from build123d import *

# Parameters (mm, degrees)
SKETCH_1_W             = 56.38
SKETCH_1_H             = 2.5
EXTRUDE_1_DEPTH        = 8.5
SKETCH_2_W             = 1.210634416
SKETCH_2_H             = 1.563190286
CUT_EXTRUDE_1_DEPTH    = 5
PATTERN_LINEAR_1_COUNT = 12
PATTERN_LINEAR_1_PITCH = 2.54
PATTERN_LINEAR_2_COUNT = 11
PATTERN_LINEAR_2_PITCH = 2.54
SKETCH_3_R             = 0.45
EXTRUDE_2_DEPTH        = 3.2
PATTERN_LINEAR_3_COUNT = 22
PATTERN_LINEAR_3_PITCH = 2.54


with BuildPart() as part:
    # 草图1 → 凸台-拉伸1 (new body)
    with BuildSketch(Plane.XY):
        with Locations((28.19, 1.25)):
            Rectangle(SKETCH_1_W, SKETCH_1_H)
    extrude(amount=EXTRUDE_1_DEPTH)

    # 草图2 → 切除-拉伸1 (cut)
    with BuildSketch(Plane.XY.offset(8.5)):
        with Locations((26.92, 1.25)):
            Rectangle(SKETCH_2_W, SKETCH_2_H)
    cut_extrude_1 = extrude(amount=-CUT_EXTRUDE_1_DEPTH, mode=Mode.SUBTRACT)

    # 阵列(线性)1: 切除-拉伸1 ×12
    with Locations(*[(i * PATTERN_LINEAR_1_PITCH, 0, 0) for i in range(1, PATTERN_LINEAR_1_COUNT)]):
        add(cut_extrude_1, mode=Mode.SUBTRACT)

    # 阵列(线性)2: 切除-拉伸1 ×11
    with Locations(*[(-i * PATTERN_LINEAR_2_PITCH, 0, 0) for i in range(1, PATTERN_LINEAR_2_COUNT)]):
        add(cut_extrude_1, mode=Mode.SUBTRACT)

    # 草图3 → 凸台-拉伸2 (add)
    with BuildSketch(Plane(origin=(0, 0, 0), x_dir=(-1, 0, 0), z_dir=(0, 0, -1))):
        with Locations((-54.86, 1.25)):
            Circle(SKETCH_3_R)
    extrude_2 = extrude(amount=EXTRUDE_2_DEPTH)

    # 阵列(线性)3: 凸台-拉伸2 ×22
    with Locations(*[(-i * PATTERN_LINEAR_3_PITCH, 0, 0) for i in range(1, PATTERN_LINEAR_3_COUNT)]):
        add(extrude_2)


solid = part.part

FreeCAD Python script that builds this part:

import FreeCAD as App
import Part
import Sketcher

V = App.Vector

doc = App.newDocument("Part")
body = doc.addObject("PartDesign::Body", "Body")

# Sketch on XY plane
sketch1 = body.newObject("Sketcher::SketchObject", "Sketch")
sketch1.AttachmentSupport = (doc.getObject("XY_Plane"), [""])
sketch1.MapMode = "FlatFace"
sketch1.addGeometry(Part.LineSegment(V(0, 2.5, 0), V(0, 0, 0)), False)
sketch1.addGeometry(Part.LineSegment(V(0, 0, 0), V(56.38, 0, 0)), False)
sketch1.addGeometry(Part.LineSegment(V(56.38, 0, 0), V(56.38, 2.5, 0)), False)
sketch1.addGeometry(Part.LineSegment(V(56.38, 2.5, 0), V(0, 2.5, 0)), False)
sketch1.addConstraint(Sketcher.Constraint("Coincident", 0, 2, 1, 1))
sketch1.addConstraint(Sketcher.Constraint("Coincident", 1, 2, 2, 1))
sketch1.addConstraint(Sketcher.Constraint("Coincident", 2, 2, 3, 1))
sketch1.addConstraint(Sketcher.Constraint("Coincident", 3, 2, 0, 1))
sketch1.addConstraint(Sketcher.Constraint("Vertical", 0))
sketch1.addConstraint(Sketcher.Constraint("Horizontal", 1))
sketch1.addConstraint(Sketcher.Constraint("Vertical", 2))
sketch1.addConstraint(Sketcher.Constraint("Horizontal", 3))
sketch1.addConstraint(Sketcher.Constraint("Coincident", 0, 2, -1, 1))
sketch1.addConstraint(Sketcher.Constraint("DistanceY", 0, 2, 0, 1, 2.5))
sketch1.addConstraint(Sketcher.Constraint("DistanceX", 1, 1, 1, 2, 56.38))
pad1 = body.newObject("PartDesign::Pad", "Pad")
pad1.Profile = sketch1
pad1.Length = 8.5

# Sketch on XY plane
sketch2 = body.newObject("Sketcher::SketchObject", "Sketch001")
sketch2.AttachmentSupport = (doc.getObject("XY_Plane"), [""])
sketch2.MapMode = "FlatFace"
sketch2.AttachmentOffset = App.Placement(V(0, 0, 8.5), App.Rotation())
sketch2.addGeometry(Part.LineSegment(V(26.314683, 2.031595, 0), V(26.314683, 0.468405, 0)), False)
sketch2.addGeometry(Part.LineSegment(V(26.314683, 0.468405, 0), V(27.525317, 0.468405, 0)), False)
sketch2.addGeometry(Part.LineSegment(V(27.525317, 0.468405, 0), V(27.525317, 2.031595, 0)), False)
sketch2.addGeometry(Part.LineSegment(V(27.525317, 2.031595, 0), V(26.314683, 2.031595, 0)), False)
sketch2.addConstraint(Sketcher.Constraint("Coincident", 0, 2, 1, 1))
sketch2.addConstraint(Sketcher.Constraint("Coincident", 1, 2, 2, 1))
sketch2.addConstraint(Sketcher.Constraint("Coincident", 2, 2, 3, 1))
sketch2.addConstraint(Sketcher.Constraint("Coincident", 3, 2, 0, 1))
sketch2.addConstraint(Sketcher.Constraint("Vertical", 0))
sketch2.addConstraint(Sketcher.Constraint("Horizontal", 1))
sketch2.addConstraint(Sketcher.Constraint("Vertical", 2))
sketch2.addConstraint(Sketcher.Constraint("Horizontal", 3))
sketch2.addConstraint(Sketcher.Constraint("DistanceY", 0, 2, 0, 1, 1.56319))
sketch2.addConstraint(Sketcher.Constraint("DistanceX", 1, 1, 1, 2, 1.210634))
sketch2.addConstraint(Sketcher.Constraint("DistanceX", -1, 1, 0, 2, 26.314683))
sketch2.addConstraint(Sketcher.Constraint("DistanceY", -1, 1, 0, 2, 0.468405))
pocket1 = body.newObject("PartDesign::Pocket", "Pocket")
pocket1.Profile = sketch2
pocket1.Length = 5
doc.recompute()

linearpattern = body.newObject("PartDesign::LinearPattern", "LinearPattern")
linearpattern.Originals = [pocket1]
linearpattern.Direction = (doc.getObject("X_Axis"), [""])
linearpattern.Mode = "offset"
linearpattern.Offset = 2.54
linearpattern.Occurrences = 12
body.Tip = linearpattern
doc.recompute()

linearpattern2 = body.newObject("PartDesign::LinearPattern", "LinearPattern001")
linearpattern2.Originals = [pocket1]
linearpattern2.Direction = (doc.getObject("X_Axis"), [""])
linearpattern2.Mode = "offset"
linearpattern2.Offset = 2.54
linearpattern2.Occurrences = 11
linearpattern2.Reversed = True
body.Tip = linearpattern2

# Sketch on XY plane
sketch3 = body.newObject("Sketcher::SketchObject", "Sketch002")
sketch3.AttachmentSupport = (doc.getObject("XY_Plane"), [""])
sketch3.MapMode = "FlatFace"
sketch3.addGeometry(Part.Circle(V(54.86, 1.25, 0), V(0, 0, 1), 0.45), False)
sketch3.addConstraint(Sketcher.Constraint("Diameter", 0, 0.9))
sketch3.addConstraint(Sketcher.Constraint("DistanceX", -1, 1, 0, 3, 54.86))
sketch3.addConstraint(Sketcher.Constraint("DistanceY", -1, 1, 0, 3, 1.25))
pad2 = body.newObject("PartDesign::Pad", "Pad001")
pad2.Profile = sketch3
pad2.Length = 3.2
pad2.Reversed = True
doc.recompute()

linearpattern3 = body.newObject("PartDesign::LinearPattern", "LinearPattern002")
linearpattern3.Originals = [pad2]
linearpattern3.Direction = (doc.getObject("X_Axis"), [""])
linearpattern3.Mode = "offset"
linearpattern3.Offset = 2.54
linearpattern3.Occurrences = 22
linearpattern3.Reversed = True
body.Tip = linearpattern3

doc.recompute()
